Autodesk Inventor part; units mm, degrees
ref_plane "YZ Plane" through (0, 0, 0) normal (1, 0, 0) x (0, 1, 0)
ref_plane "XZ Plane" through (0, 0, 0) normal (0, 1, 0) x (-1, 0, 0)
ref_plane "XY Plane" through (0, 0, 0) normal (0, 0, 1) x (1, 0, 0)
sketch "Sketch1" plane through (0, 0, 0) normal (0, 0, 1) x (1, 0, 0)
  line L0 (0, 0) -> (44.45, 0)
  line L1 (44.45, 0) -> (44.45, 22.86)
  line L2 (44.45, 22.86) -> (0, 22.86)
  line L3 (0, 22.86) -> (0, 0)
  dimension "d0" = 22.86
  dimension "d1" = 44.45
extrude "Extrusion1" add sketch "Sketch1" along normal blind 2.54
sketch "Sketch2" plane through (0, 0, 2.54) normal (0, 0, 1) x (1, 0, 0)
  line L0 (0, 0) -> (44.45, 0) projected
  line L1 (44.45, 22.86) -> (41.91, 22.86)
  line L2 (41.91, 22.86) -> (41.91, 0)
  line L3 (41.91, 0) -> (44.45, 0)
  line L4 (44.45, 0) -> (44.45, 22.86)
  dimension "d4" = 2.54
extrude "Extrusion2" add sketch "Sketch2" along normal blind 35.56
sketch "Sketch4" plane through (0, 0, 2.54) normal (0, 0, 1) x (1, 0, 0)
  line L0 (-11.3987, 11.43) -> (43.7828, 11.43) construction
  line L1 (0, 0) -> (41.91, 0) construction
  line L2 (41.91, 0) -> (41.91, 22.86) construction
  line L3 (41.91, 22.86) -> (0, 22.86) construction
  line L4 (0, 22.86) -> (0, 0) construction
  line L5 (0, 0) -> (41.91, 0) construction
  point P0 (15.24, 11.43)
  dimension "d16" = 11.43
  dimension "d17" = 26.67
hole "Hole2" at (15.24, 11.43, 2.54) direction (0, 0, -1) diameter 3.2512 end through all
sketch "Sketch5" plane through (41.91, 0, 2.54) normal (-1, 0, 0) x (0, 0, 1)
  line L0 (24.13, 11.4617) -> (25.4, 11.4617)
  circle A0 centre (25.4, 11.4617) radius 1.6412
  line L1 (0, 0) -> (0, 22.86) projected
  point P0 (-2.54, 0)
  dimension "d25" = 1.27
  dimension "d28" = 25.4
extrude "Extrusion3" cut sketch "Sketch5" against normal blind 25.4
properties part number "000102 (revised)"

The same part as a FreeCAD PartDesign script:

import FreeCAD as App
import Part
import Sketcher

V = App.Vector
Q = App.Units.Quantity

doc = App.newDocument("Part")
body = doc.addObject("PartDesign::Body", "Body")

sketch1 = body.newObject("Sketcher::SketchObject", "Sketch")
sketch1.AttachmentSupport = (doc.getObject("XY_Plane"), [""])
sketch1.MapMode = "FlatFace"
sketch1.addGeometry(Part.LineSegment(V(0, 22.86, 0), V(0, 0, 0)), False)
sketch1.addGeometry(Part.LineSegment(V(0, 0, 0), V(44.45, 0, 0)), False)
sketch1.addGeometry(Part.LineSegment(V(44.45, 0, 0), V(44.45, 22.86, 0)), False)
sketch1.addGeometry(Part.LineSegment(V(44.45, 22.86, 0), V(0, 22.86, 0)), False)
sketch1.addConstraint(Sketcher.Constraint("Coincident", 0, 2, 1, 1))
sketch1.addConstraint(Sketcher.Constraint("Coincident", 1, 2, 2, 1))
sketch1.addConstraint(Sketcher.Constraint("Coincident", 2, 2, 3, 1))
sketch1.addConstraint(Sketcher.Constraint("Coincident", 3, 2, 0, 1))
sketch1.addConstraint(Sketcher.Constraint("Vertical", 0))
sketch1.addConstraint(Sketcher.Constraint("Horizontal", 1))
sketch1.addConstraint(Sketcher.Constraint("Vertical", 2))
sketch1.addConstraint(Sketcher.Constraint("Horizontal", 3))
sketch1.addConstraint(Sketcher.Constraint("Coincident", 0, 2, -1, 1))
sketch1.addConstraint(Sketcher.Constraint("DistanceY", 0, 2, 0, 1, Q("0.9 in")))
sketch1.addConstraint(Sketcher.Constraint("DistanceX", 1, 1, 1, 2, Q("1.75 in")))
pad1 = body.newObject("PartDesign::Pad", "Pad")
pad1.Profile = sketch1
pad1.Length = Q("0.1 in")

sketch2 = body.newObject("Sketcher::SketchObject", "Sketch001")
sketch2.AttachmentSupport = (doc.getObject("XY_Plane"), [""])
sketch2.MapMode = "FlatFace"
sketch2.AttachmentOffset = App.Placement(V(0, 0, 0.1 * 25.4), App.Rotation())
sketch2.addGeometry(Part.LineSegment(V(41.91, 22.86, 0), V(41.91, 0, 0)), False)
sketch2.addGeometry(Part.LineSegment(V(41.91, 0, 0), V(44.45, 0, 0)), False)
sketch2.addGeometry(Part.LineSegment(V(44.45, 0, 0), V(44.45, 22.86, 0)), False)
sketch2.addGeometry(Part.LineSegment(V(44.45, 22.86, 0), V(41.91, 22.86, 0)), False)
sketch2.addConstraint(Sketcher.Constraint("Coincident", 0, 2, 1, 1))
sketch2.addConstraint(Sketcher.Constraint("Coincident", 1, 2, 2, 1))
sketch2.addConstraint(Sketcher.Constraint("Coincident", 2, 2, 3, 1))
sketch2.addConstraint(Sketcher.Constraint("Coincident", 3, 2, 0, 1))
sketch2.addConstraint(Sketcher.Constraint("Vertical", 0))
sketch2.addConstraint(Sketcher.Constraint("Horizontal", 1))
sketch2.addConstraint(Sketcher.Constraint("Vertical", 2))
sketch2.addConstraint(Sketcher.Constraint("Horizontal", 3))
sketch2.addConstraint(Sketcher.Constraint("PointOnObject", 0, 2, -1))
sketch2.addConstraint(Sketcher.Constraint("DistanceX", 1, 1, 1, 2, Q("0.1 in")))
sketch2.addConstraint(Sketcher.Constraint("DistanceY", 0, 2, 0, 1, Q("0.9 in")))
sketch2.addConstraint(Sketcher.Constraint("DistanceX", -1, 1, 0, 2, Q("1.65 in")))
pad2 = body.newObject("PartDesign::Pad", "Pad001")
pad2.Profile = sketch2
pad2.Length = Q("1.4 in")

sketch3 = body.newObject("Sketcher::SketchObject", "Sketch002")
sketch3.AttachmentSupport = (doc.getObject("XY_Plane"), [""])
sketch3.MapMode = "FlatFace"
sketch3.AttachmentOffset = App.Placement(V(0, 0, 0.1 * 25.4), App.Rotation())
sketch3.addGeometry(Part.Circle(V(15.24, 11.43, 0), V(0, 0, 1), 1.6256), False)
sketch3.addConstraint(Sketcher.Constraint("Diameter", 0, Q("0.128 in")))
sketch3.addConstraint(Sketcher.Constraint("DistanceX", -1, 1, 0, 3, Q("0.6 in")))
sketch3.addConstraint(Sketcher.Constraint("DistanceY", -1, 1, 0, 3, Q("0.45 in")))
doc.recompute()
hole = body.newObject("PartDesign::Hole", "Hole")
hole.Profile = sketch3
hole.ThreadType = "None"
hole.Diameter = Q("0.128 in")
hole.DepthType = "ThroughAll"

sketch4 = body.newObject("Sketcher::SketchObject", "Sketch003")
sketch4.AttachmentSupport = (doc.getObject("YZ_Plane"), [""])
sketch4.MapMode = "FlatFace"
sketch4.AttachmentOffset = App.Placement(V(0, 0, 1.65 * 25.4), App.Rotation())
sketch4.addGeometry(Part.Circle(V(11.4617, 27.94, 0), V(0, 0, 1), 1.6412), False)
sketch4.addConstraint(Sketcher.Constraint("DistanceY", -1, 1, 0, 3, Q("1.1 in")))
sketch4.addConstraint(Sketcher.Constraint("Diameter", 0, Q("3.2824 mm")))
sketch4.addConstraint(Sketcher.Constraint("DistanceX", -1, 1, 0, 3, Q("11.4617 mm")))
pocket1 = body.newObject("PartDesign::Pocket", "Pocket")
pocket1.Profile = sketch4
pocket1.Length = Q("1 in")
pocket1.Reversed = True

doc.recompute()
